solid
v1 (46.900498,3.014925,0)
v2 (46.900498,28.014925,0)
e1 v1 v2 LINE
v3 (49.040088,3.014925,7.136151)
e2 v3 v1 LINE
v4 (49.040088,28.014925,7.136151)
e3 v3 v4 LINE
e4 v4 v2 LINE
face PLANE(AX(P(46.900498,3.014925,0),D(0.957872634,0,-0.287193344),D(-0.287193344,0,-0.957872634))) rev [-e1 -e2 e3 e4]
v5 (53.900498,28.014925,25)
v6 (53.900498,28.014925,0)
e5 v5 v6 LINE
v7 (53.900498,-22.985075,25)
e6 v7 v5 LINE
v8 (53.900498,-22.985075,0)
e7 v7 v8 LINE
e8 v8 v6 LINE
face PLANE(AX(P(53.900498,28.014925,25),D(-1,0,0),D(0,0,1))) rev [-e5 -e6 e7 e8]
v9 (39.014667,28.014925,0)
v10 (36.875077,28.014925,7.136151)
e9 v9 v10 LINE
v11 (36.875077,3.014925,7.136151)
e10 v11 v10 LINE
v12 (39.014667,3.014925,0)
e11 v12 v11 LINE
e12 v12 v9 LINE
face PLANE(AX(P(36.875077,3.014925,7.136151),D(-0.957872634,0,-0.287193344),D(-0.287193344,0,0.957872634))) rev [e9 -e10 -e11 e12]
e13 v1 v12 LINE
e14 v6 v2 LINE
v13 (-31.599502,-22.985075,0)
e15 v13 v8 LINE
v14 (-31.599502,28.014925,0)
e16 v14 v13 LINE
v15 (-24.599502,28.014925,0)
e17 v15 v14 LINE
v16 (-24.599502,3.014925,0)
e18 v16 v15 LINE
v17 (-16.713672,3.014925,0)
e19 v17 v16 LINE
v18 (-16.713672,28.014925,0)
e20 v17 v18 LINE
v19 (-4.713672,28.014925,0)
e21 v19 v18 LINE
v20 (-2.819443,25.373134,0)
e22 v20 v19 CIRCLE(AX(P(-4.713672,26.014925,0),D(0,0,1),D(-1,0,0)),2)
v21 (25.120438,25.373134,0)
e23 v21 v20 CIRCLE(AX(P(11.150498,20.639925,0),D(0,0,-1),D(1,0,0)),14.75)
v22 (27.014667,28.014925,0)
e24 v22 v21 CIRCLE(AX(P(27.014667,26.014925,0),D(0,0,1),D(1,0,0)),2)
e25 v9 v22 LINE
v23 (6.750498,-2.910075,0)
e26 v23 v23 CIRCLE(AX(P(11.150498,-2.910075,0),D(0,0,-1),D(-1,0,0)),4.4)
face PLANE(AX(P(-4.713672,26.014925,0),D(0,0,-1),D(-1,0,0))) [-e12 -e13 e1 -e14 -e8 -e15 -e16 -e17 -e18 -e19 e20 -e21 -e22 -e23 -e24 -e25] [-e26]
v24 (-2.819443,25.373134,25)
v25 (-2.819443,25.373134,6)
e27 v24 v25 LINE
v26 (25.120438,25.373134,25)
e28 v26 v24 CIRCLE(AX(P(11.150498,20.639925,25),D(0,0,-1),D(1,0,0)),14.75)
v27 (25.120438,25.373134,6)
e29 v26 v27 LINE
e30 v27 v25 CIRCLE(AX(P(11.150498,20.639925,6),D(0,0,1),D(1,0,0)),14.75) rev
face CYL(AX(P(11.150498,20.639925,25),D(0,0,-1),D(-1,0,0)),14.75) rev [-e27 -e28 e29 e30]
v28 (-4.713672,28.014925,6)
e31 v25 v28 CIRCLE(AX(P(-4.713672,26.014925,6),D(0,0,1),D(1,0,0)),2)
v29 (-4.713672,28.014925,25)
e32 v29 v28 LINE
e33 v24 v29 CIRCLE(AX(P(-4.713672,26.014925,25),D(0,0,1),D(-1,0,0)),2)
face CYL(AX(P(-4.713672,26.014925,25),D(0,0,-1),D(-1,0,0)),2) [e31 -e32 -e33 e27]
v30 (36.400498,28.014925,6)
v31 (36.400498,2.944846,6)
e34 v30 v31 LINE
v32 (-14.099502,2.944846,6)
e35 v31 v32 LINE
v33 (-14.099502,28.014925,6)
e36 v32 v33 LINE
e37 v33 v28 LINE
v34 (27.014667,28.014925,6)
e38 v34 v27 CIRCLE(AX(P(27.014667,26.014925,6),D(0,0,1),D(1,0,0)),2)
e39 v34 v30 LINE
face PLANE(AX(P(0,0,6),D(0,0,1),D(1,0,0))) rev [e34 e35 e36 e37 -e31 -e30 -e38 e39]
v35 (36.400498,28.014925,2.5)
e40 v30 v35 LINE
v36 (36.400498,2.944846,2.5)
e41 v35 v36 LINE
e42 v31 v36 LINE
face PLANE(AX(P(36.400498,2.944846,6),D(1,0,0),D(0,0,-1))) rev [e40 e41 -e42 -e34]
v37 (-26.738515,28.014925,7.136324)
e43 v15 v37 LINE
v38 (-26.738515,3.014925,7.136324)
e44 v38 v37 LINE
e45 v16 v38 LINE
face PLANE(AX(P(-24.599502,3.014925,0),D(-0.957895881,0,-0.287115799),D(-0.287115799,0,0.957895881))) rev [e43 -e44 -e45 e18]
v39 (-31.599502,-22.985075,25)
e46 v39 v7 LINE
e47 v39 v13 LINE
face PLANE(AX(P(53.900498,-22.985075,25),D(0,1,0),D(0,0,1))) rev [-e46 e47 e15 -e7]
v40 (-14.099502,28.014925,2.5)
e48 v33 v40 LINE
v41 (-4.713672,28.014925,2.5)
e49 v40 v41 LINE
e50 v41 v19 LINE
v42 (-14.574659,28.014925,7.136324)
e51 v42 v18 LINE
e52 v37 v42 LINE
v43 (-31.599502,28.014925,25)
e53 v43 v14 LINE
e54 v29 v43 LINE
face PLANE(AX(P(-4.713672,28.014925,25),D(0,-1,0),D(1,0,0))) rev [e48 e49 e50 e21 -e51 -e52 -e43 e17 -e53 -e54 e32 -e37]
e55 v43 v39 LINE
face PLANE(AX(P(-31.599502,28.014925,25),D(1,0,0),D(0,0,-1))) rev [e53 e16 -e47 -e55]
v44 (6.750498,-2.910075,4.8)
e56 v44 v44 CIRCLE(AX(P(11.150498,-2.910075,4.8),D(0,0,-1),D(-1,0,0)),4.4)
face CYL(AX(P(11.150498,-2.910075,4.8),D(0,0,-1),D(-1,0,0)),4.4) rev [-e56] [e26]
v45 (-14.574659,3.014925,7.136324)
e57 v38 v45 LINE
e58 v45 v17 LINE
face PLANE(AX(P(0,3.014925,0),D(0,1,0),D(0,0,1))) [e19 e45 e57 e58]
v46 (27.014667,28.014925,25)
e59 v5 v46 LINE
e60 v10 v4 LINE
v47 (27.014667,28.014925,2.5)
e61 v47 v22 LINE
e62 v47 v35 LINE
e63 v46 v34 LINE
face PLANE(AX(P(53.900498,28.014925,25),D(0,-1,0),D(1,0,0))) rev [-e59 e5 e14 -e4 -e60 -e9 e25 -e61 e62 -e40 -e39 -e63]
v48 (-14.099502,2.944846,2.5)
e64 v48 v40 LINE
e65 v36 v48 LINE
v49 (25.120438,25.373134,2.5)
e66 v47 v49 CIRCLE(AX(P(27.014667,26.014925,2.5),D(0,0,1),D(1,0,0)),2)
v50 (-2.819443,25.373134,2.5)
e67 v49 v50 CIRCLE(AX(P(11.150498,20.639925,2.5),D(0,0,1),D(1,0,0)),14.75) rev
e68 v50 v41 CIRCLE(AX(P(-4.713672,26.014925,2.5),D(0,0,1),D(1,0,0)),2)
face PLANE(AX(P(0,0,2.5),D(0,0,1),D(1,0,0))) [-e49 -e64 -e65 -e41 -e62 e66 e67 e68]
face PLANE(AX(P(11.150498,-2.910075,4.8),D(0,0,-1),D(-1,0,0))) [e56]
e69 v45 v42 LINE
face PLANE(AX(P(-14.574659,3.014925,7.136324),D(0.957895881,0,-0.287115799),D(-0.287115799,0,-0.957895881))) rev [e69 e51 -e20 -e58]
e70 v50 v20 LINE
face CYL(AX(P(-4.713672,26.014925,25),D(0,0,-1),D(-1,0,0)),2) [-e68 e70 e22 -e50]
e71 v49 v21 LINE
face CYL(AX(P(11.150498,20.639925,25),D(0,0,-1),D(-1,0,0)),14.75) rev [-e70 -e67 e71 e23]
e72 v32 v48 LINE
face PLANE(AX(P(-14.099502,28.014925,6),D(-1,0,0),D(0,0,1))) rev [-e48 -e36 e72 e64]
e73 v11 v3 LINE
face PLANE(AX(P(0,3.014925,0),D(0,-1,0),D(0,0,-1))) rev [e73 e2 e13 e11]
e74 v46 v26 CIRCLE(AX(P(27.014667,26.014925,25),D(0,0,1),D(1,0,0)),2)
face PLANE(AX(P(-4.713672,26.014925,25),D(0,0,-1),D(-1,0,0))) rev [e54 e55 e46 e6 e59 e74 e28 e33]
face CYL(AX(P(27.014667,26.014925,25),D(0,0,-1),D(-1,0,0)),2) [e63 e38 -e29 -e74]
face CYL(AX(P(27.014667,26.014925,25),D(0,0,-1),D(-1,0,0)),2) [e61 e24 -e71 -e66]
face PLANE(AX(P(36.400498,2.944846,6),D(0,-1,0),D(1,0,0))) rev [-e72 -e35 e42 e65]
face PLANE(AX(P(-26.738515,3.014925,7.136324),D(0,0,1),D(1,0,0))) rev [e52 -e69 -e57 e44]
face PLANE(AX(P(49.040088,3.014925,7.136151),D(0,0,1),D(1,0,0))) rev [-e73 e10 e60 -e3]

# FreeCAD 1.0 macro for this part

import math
import FreeCAD as App
import Part
import Sketcher
Q = App.Units.Quantity

doc = App.newDocument("Part")
body = doc.addObject("PartDesign::Body", "Body")

# Sketch on XY plane
sketch1 = doc.addObject("Sketcher::SketchObject", "Sketch")
body.addObject(sketch1)
sketch1.AttachmentSupport = (doc.XY_Plane, [""])
sketch1.MapMode = "FlatFace"
sketch1.addGeometry([
    Part.LineSegment(App.Vector(53.9, 28, 0), App.Vector(27, 28, 0)),  # 0
    Part.ArcOfCircle(Part.Circle(App.Vector(27, 26, 0), App.Vector(0, 0, 1), 2), math.radians(90), math.radians(199)),  # 1
    Part.ArcOfCircle(Part.Circle(App.Vector(11.2, 20.6, 0), App.Vector(0, 0, 1), 14.8), math.radians(161), math.radians(379)),  # 2
    Part.ArcOfCircle(Part.Circle(App.Vector(-4.7, 26, 0), App.Vector(0, 0, 1), 2), math.radians(-19), math.radians(90)),  # 3
    Part.LineSegment(App.Vector(-4.7, 28, 0), App.Vector(-31.6, 28, 0)),  # 4
    Part.LineSegment(App.Vector(-31.6, 28, 0), App.Vector(-31.6, -23, 0)),  # 5
    Part.LineSegment(App.Vector(-31.6, -23, 0), App.Vector(53.9, -23, 0)),  # 6
    Part.LineSegment(App.Vector(53.9, -23, 0), App.Vector(53.9, 28, 0)),  # 7
], False)
sketch1.addConstraint([
    Sketcher.Constraint("Tangent", 0, 2, 1, 1),
    Sketcher.Constraint("Tangent", 1, 2, 2, 2),
    Sketcher.Constraint("Tangent", 2, 1, 3, 1),
    Sketcher.Constraint("Tangent", 3, 2, 4, 1),
    Sketcher.Constraint("Coincident", 4, 2, 5, 1),
    Sketcher.Constraint("Coincident", 5, 2, 6, 1),
    Sketcher.Constraint("Coincident", 6, 2, 7, 1),
    Sketcher.Constraint("Coincident", 7, 2, 0, 1),
    Sketcher.Constraint("Horizontal", 0),
    Sketcher.Constraint("Horizontal", 4),
    Sketcher.Constraint("Vertical", 5),
    Sketcher.Constraint("Horizontal", 6),
    Sketcher.Constraint("Vertical", 7),
    Sketcher.Constraint("Equal", 1, 3),
    Sketcher.Constraint("Horizontal", 1, 3, 3, 3),
    Sketcher.Constraint("Equal", 0, 4),
    Sketcher.Constraint("Radius", 1, 2.0),
    Sketcher.Constraint("DistanceY", 5, 2, 5, 1, 51.0),
    Sketcher.Constraint("Radius", 2, 14.75),
    Sketcher.Constraint("DistanceX", 6, 1, 6, 2, 85.5),
    Sketcher.Constraint("DistanceY", 2, 3, 1, 3, 5.375),
    Sketcher.Constraint("DistanceX", -1, 1, 1, 3, 27.014667),
    Sketcher.Constraint("DistanceY", -1, 1, 1, 3, 26.014925),
])
pad1 = doc.addObject("PartDesign::Pad", "Pad")
body.addObject(pad1)
pad1.Profile = sketch1
pad1.Length = 25

# Sketch on XY plane
sketch2 = doc.addObject("Sketcher::SketchObject", "Sketch001")
body.addObject(sketch2)
sketch2.AttachmentSupport = (doc.XY_Plane, [""])
sketch2.MapMode = "FlatFace"
sketch2.addGeometry(Part.Circle(App.Vector(11.2, -2.9, 0), App.Vector(0, 0, 1), 4.4), False)
sketch2.addConstraint([
    Sketcher.Constraint("Diameter", 0, 8.8),
    Sketcher.Constraint("DistanceX", -1, 1, 0, 3, 11.150498),
    Sketcher.Constraint("DistanceY", 0, 3, -1, 1, 2.910075),
])
pocket1 = doc.addObject("PartDesign::Pocket", "Pocket")
body.addObject(pocket1)
pocket1.Profile = sketch2
pocket1.Length = 4.8
pocket1.Reversed = True

# Sketch on XZ plane
sketch3 = doc.addObject("Sketcher::SketchObject", "Sketch002")
body.addObject(sketch3)
sketch3.AttachmentSupport = (doc.XZ_Plane, [""])
sketch3.MapMode = "FlatFace"
sketch3.AttachmentOffset = App.Placement(App.Vector(0, 0, -28.014925), App.Rotation())
sketch3.addGeometry([
    Part.LineSegment(App.Vector(-25, 0, 0), App.Vector(-27, 7, 0)),  # 0
    Part.LineSegment(App.Vector(-27, 7, 0), App.Vector(-15, 7, 0)),  # 1
    Part.LineSegment(App.Vector(-15, 7, 0), App.Vector(-17, 0, 0)),  # 2
    Part.LineSegment(App.Vector(-17, 0, 0), App.Vector(-25, 0, 0)),  # 3
    Part.LineSegment(App.Vector(49, 7, 0), App.Vector(47, 0, 0)),  # 4
    Part.LineSegment(App.Vector(47, 0, 0), App.Vector(39, 0, 0)),  # 5
    Part.LineSegment(App.Vector(39, 0, 0), App.Vector(37, 7, 0)),  # 6
    Part.LineSegment(App.Vector(37, 7, 0), App.Vector(49, 7, 0)),  # 7
], False)
sketch3.addConstraint([
    Sketcher.Constraint("Coincident", 0, 2, 1, 1),
    Sketcher.Constraint("Coincident", 1, 2, 2, 1),
    Sketcher.Constraint("Coincident", 2, 2, 3, 1),
    Sketcher.Constraint("Coincident", 3, 2, 0, 1),
    Sketcher.Constraint("Coincident", 4, 2, 5, 1),
    Sketcher.Constraint("Coincident", 5, 2, 6, 1),
    Sketcher.Constraint("Coincident", 6, 2, 7, 1),
    Sketcher.Constraint("Coincident", 7, 2, 4, 1),
    Sketcher.Constraint("Horizontal", 1),
    Sketcher.Constraint("Horizontal", 3),
    Sketcher.Constraint("Horizontal", 5),
    Sketcher.Constraint("Horizontal", 7),
    Sketcher.Constraint("PointOnObject", 2, 2, -1),
    Sketcher.Constraint("PointOnObject", 4, 2, -1),
    Sketcher.Constraint("Equal", 3, 5),
    Sketcher.Constraint("Equal", 0, 2),
    Sketcher.Constraint("Equal", 2, 4),
    Sketcher.Constraint("Equal", 4, 6),
    Sketcher.Constraint("Angle", 4, Q("-106.69 deg")),
    Sketcher.Constraint("DistanceX", 3, 2, 4, 2, 71.5),
    Sketcher.Constraint("Distance", 0, 7.45),
    Sketcher.Constraint("DistanceX", 3, 2, 3, 1, 7.88583),
    Sketcher.Constraint("DistanceX", 1, 1, 1, 2, 12.163856),
    Sketcher.Constraint("DistanceX", 1, 2, -1, 1, 14.574659),
])
pocket2 = doc.addObject("PartDesign::Pocket", "Pocket001")
body.addObject(pocket2)
pocket2.Profile = sketch3
pocket2.Length = 25
pocket2.Reversed = True

# Sketch on XY plane
sketch4 = doc.addObject("Sketcher::SketchObject", "Sketch003")
body.addObject(sketch4)
sketch4.AttachmentSupport = (doc.XY_Plane, [""])
sketch4.MapMode = "FlatFace"
sketch4.AttachmentOffset = App.Placement(App.Vector(0, 0, 2.5), App.Rotation())
sketch4.addGeometry([
    Part.LineSegment(App.Vector(36, 28, 0), App.Vector(36, 3, 0)),
    Part.LineSegment(App.Vector(36, 3, 0), App.Vector(-14, 3, 0)),
    Part.LineSegment(App.Vector(-14, 3, 0), App.Vector(-14, 28, 0)),
    Part.LineSegment(App.Vector(-14, 28, 0), App.Vector(36, 28, 0)),
], False)
sketch4.addConstraint([
    Sketcher.Constraint("Coincident", 0, 2, 1, 1),
    Sketcher.Constraint("Coincident", 1, 2, 2, 1),
    Sketcher.Constraint("Coincident", 2, 2, 3, 1),
    Sketcher.Constraint("Coincident", 3, 2, 0, 1),
    Sketcher.Constraint("Vertical", 0),
    Sketcher.Constraint("Horizontal", 1),
    Sketcher.Constraint("Vertical", 2),
    Sketcher.Constraint("Horizontal", 3),
    Sketcher.Constraint("DistanceX", 1, 2, 1, 1, 50.5),
    Sketcher.Constraint("DistanceY", 0, 2, 0, 1, 25.07008),
    Sketcher.Constraint("DistanceX", -1, 1, 0, 2, 36.400498),
    Sketcher.Constraint("DistanceY", -1, 1, 0, 2, 2.944846),
])
pocket3 = doc.addObject("PartDesign::Pocket", "Pocket002")
body.addObject(pocket3)
pocket3.Profile = sketch4
pocket3.Length = 3.5
pocket3.Reversed = True

doc.recompute()
